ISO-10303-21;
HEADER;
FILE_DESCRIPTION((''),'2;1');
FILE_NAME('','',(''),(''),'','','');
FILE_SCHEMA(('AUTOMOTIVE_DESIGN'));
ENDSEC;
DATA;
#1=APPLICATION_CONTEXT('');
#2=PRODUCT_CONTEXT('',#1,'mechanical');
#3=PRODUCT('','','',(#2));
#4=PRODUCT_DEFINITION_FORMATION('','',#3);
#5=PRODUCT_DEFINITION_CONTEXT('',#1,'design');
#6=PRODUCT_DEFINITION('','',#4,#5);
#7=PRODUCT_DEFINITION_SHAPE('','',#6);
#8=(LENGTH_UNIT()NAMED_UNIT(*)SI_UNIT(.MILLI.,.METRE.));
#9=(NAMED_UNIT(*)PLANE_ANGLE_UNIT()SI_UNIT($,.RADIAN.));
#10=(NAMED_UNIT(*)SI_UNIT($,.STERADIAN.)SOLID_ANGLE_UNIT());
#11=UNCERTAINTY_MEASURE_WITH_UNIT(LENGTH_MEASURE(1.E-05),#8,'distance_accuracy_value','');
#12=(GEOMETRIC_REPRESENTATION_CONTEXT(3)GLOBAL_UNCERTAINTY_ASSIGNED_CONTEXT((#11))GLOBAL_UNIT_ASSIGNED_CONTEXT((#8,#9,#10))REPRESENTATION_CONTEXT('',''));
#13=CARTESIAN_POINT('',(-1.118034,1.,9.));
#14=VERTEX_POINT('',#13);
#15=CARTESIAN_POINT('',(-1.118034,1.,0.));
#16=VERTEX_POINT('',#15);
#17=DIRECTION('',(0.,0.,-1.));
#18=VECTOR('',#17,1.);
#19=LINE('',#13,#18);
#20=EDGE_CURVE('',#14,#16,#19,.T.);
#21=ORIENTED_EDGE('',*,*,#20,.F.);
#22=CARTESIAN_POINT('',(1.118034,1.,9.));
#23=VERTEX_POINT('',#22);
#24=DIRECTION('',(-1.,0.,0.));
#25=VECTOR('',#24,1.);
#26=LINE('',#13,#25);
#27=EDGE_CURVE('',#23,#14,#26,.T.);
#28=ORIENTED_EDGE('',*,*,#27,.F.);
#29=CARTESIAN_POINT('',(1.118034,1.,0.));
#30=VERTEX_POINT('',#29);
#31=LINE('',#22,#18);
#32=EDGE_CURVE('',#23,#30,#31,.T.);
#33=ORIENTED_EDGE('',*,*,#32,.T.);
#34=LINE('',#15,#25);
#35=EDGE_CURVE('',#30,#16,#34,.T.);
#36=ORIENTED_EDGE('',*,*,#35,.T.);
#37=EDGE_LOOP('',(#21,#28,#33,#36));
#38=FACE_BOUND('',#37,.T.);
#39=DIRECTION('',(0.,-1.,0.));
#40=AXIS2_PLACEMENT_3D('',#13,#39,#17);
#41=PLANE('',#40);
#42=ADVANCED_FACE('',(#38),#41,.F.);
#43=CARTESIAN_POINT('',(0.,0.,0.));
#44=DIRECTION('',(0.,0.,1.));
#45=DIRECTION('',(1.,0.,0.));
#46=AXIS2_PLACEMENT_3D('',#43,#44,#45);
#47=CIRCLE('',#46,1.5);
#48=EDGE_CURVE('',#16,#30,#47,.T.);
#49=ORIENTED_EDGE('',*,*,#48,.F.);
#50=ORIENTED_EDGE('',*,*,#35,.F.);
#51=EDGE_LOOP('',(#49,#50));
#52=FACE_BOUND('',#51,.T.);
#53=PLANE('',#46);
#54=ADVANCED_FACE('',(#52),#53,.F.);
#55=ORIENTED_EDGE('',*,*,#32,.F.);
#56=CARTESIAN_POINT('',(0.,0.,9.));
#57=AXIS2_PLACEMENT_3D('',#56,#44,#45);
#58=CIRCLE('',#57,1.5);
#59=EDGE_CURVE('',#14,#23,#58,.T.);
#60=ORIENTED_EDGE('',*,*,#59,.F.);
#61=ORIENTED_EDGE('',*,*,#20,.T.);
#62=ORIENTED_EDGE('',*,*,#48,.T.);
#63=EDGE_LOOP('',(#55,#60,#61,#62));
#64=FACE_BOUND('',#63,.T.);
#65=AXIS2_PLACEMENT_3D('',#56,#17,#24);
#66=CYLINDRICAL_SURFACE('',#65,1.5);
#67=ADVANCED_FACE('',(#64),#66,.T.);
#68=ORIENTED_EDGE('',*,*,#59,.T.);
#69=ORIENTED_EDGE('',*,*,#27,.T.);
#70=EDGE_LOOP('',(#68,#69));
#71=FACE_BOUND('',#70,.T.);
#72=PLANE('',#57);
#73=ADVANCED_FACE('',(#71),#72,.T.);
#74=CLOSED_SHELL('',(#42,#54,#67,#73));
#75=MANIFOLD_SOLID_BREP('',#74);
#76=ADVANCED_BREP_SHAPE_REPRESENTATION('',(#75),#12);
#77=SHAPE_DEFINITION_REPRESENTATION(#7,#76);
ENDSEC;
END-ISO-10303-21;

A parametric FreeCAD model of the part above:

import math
import FreeCAD as App
import Part
import Sketcher
from FreeCAD import Vector
Q = App.Units.Quantity

doc = App.newDocument("Part")
body = doc.addObject("PartDesign::Body", "Body")

sketch1 = body.newObject("Sketcher::SketchObject", "Sketch")
sketch1.AttachmentSupport = (doc.getObject("XY_Plane"), [""])
sketch1.MapMode = "FlatFace"
sketch1.addGeometry(Part.LineSegment(Vector(1.118034, 1, 0), Vector(-1.118034, 1, 0)), False)
sketch1.addGeometry(Part.ArcOfCircle(Part.Circle(Vector(0, 0, 0), Vector(0, 0, 1), 1.5), math.radians(138.189685), math.radians(401.810315)), False)
sketch1.addConstraint(Sketcher.Constraint("Coincident", 0, 1, 1, 2))
sketch1.addConstraint(Sketcher.Constraint("Coincident", 1, 1, 0, 2))
sketch1.addConstraint(Sketcher.Constraint("Horizontal", 0))
sketch1.addConstraint(Sketcher.Constraint("Coincident", 1, 3, -1, 1))
sketch1.addConstraint(Sketcher.Constraint("Radius", 1, Q("1.5 mm")))
sketch1.addConstraint(Sketcher.Constraint("DistanceY", -1, 1, 0, 1, Q("1 mm")))
pad1 = body.newObject("PartDesign::Pad", "Pad")
pad1.Profile = sketch1
pad1.Length = 9

doc.recompute()
